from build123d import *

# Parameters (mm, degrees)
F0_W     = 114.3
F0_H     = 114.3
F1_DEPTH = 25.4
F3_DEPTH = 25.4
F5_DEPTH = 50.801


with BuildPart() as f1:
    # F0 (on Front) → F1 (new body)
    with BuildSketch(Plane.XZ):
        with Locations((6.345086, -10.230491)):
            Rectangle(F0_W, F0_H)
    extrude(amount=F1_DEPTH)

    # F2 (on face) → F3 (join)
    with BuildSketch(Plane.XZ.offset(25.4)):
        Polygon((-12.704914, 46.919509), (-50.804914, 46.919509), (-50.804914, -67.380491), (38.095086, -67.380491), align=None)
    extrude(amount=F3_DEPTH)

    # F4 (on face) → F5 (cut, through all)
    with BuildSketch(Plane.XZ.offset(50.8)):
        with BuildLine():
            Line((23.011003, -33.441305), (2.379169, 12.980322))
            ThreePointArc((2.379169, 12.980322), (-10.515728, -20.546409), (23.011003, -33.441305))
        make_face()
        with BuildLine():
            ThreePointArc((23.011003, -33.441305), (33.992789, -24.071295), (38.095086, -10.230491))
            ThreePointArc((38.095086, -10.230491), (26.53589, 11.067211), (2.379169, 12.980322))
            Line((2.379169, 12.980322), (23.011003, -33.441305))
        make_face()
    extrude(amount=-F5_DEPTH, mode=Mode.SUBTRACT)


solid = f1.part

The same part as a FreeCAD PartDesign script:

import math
import FreeCAD as App
import Part
import Sketcher
Q = App.Units.Quantity

doc = App.newDocument("Part")
body = doc.addObject("PartDesign::Body", "Body")

# Sketch on XZ plane
sketch1 = body.newObject("Sketcher::SketchObject", "Sketch")
sketch1.AttachmentSupport = (doc.getObject("XZ_Plane"), [""])
sketch1.MapMode = "FlatFace"
sketch1.addGeometry([
    Part.LineSegment(App.Vector(-51, 47, 0), App.Vector(-51, -67, 0)),
    Part.LineSegment(App.Vector(-51, -67, 0), App.Vector(63, -67, 0)),
    Part.LineSegment(App.Vector(63, -67, 0), App.Vector(63, 47, 0)),
    Part.LineSegment(App.Vector(63, 47, 0), App.Vector(-51, 47, 0)),
], False)
sketch1.addConstraint([
    Sketcher.Constraint("Coincident", 0, 2, 1, 1),
    Sketcher.Constraint("Coincident", 1, 2, 2, 1),
    Sketcher.Constraint("Coincident", 2, 2, 3, 1),
    Sketcher.Constraint("Coincident", 3, 2, 0, 1),
    Sketcher.Constraint("Vertical", 0),
    Sketcher.Constraint("Horizontal", 1),
    Sketcher.Constraint("Vertical", 2),
    Sketcher.Constraint("Horizontal", 3),
    Sketcher.Constraint("Equal", 3, 0),
    Sketcher.Constraint("DistanceX", 1, 1, 1, 2, Q("4.5 in")),
    Sketcher.Constraint("DistanceY", 0, 2, -1, 1, Q("67.380491 mm")),
    Sketcher.Constraint("DistanceX", 0, 2, -1, 1, Q("50.804914 mm")),
])
pad1 = body.newObject("PartDesign::Pad", "Pad")
pad1.Profile = sketch1
pad1.Length = Q("1 in")

# Sketch on XZ plane
sketch2 = body.newObject("Sketcher::SketchObject", "Sketch001")
sketch2.AttachmentSupport = (doc.getObject("XZ_Plane"), [""])
sketch2.MapMode = "FlatFace"
sketch2.AttachmentOffset = App.Placement(App.Vector(0, 0, 1 * 25.4), App.Rotation())
sketch2.addGeometry([
    Part.LineSegment(App.Vector(-13, 47, 0), App.Vector(-51, 47, 0)),
    Part.LineSegment(App.Vector(-51, 47, 0), App.Vector(-51, -67, 0)),
    Part.LineSegment(App.Vector(-51, -67, 0), App.Vector(38, -67, 0)),
    Part.LineSegment(App.Vector(38, -67, 0), App.Vector(-13, 47, 0)),
], False)
sketch2.addConstraint([
    Sketcher.Constraint("Coincident", 0, 2, 1, 1),
    Sketcher.Constraint("Coincident", 1, 2, 2, 1),
    Sketcher.Constraint("Coincident", 2, 2, 3, 1),
    Sketcher.Constraint("Coincident", 3, 2, 0, 1),
    Sketcher.Constraint("Horizontal", 0),
    Sketcher.Constraint("Vertical", 1),
    Sketcher.Constraint("Horizontal", 2),
    Sketcher.Constraint("DistanceX", 0, 2, 0, 1, Q("1.5 in")),
    Sketcher.Constraint("DistanceX", 2, 1, 2, 2, Q("3.5 in")),
    Sketcher.Constraint("DistanceY", 1, 2, 1, 1, Q("4.5 in")),
    Sketcher.Constraint("DistanceY", -1, 1, 0, 2, Q("46.919509 mm")),
    Sketcher.Constraint("DistanceX", 0, 2, -1, 1, Q("50.804914 mm")),
])
pad2 = body.newObject("PartDesign::Pad", "Pad001")
pad2.Profile = sketch2
pad2.Length = Q("1 in")

# Sketch on XZ plane
sketch3 = body.newObject("Sketcher::SketchObject", "Sketch002")
sketch3.AttachmentSupport = (doc.getObject("XZ_Plane"), [""])
sketch3.MapMode = "FlatFace"
sketch3.AttachmentOffset = App.Placement(App.Vector(0, 0, 2 * 25.4), App.Rotation())
sketch3.addGeometry([
    Part.ArcOfCircle(Part.Circle(App.Vector(13, -10, 0), App.Vector(0, 0, 1), 25), math.radians(114), math.radians(294)),
    Part.ArcOfCircle(Part.Circle(App.Vector(13, -10, 0), App.Vector(0, 0, 1), 25), math.radians(-66), math.radians(0)),
    Part.ArcOfCircle(Part.Circle(App.Vector(13, -10, 0), App.Vector(0, 0, 1), 25), math.radians(0), math.radians(114)),
], False)
sketch3.addConstraint([
    Sketcher.Constraint("Tangent", 0, 2, 1, 1),
    Sketcher.Constraint("Tangent", 1, 2, 2, 1),
    Sketcher.Constraint("Tangent", 2, 2, 0, 1),
    Sketcher.Constraint("Horizontal", 2, 3, 1, 2),
    Sketcher.Constraint("Radius", 0, Q("1 in")),
    Sketcher.Constraint("DistanceY", 0, 3, -1, 1, Q("10.230492 mm")),
    Sketcher.Constraint("DistanceX", -1, 1, 2, 2, Q("2.379169 mm")),
    Sketcher.Constraint("DistanceX", -1, 1, 0, 3, Q("12.695085 mm")),
    Sketcher.Constraint("DistanceX", -1, 1, 0, 2, Q("23.011003 mm")),
])
pocket1 = body.newObject("PartDesign::Pocket", "Pocket")
pocket1.Profile = sketch3
pocket1.Type = "ThroughAll"

doc.recompute()
